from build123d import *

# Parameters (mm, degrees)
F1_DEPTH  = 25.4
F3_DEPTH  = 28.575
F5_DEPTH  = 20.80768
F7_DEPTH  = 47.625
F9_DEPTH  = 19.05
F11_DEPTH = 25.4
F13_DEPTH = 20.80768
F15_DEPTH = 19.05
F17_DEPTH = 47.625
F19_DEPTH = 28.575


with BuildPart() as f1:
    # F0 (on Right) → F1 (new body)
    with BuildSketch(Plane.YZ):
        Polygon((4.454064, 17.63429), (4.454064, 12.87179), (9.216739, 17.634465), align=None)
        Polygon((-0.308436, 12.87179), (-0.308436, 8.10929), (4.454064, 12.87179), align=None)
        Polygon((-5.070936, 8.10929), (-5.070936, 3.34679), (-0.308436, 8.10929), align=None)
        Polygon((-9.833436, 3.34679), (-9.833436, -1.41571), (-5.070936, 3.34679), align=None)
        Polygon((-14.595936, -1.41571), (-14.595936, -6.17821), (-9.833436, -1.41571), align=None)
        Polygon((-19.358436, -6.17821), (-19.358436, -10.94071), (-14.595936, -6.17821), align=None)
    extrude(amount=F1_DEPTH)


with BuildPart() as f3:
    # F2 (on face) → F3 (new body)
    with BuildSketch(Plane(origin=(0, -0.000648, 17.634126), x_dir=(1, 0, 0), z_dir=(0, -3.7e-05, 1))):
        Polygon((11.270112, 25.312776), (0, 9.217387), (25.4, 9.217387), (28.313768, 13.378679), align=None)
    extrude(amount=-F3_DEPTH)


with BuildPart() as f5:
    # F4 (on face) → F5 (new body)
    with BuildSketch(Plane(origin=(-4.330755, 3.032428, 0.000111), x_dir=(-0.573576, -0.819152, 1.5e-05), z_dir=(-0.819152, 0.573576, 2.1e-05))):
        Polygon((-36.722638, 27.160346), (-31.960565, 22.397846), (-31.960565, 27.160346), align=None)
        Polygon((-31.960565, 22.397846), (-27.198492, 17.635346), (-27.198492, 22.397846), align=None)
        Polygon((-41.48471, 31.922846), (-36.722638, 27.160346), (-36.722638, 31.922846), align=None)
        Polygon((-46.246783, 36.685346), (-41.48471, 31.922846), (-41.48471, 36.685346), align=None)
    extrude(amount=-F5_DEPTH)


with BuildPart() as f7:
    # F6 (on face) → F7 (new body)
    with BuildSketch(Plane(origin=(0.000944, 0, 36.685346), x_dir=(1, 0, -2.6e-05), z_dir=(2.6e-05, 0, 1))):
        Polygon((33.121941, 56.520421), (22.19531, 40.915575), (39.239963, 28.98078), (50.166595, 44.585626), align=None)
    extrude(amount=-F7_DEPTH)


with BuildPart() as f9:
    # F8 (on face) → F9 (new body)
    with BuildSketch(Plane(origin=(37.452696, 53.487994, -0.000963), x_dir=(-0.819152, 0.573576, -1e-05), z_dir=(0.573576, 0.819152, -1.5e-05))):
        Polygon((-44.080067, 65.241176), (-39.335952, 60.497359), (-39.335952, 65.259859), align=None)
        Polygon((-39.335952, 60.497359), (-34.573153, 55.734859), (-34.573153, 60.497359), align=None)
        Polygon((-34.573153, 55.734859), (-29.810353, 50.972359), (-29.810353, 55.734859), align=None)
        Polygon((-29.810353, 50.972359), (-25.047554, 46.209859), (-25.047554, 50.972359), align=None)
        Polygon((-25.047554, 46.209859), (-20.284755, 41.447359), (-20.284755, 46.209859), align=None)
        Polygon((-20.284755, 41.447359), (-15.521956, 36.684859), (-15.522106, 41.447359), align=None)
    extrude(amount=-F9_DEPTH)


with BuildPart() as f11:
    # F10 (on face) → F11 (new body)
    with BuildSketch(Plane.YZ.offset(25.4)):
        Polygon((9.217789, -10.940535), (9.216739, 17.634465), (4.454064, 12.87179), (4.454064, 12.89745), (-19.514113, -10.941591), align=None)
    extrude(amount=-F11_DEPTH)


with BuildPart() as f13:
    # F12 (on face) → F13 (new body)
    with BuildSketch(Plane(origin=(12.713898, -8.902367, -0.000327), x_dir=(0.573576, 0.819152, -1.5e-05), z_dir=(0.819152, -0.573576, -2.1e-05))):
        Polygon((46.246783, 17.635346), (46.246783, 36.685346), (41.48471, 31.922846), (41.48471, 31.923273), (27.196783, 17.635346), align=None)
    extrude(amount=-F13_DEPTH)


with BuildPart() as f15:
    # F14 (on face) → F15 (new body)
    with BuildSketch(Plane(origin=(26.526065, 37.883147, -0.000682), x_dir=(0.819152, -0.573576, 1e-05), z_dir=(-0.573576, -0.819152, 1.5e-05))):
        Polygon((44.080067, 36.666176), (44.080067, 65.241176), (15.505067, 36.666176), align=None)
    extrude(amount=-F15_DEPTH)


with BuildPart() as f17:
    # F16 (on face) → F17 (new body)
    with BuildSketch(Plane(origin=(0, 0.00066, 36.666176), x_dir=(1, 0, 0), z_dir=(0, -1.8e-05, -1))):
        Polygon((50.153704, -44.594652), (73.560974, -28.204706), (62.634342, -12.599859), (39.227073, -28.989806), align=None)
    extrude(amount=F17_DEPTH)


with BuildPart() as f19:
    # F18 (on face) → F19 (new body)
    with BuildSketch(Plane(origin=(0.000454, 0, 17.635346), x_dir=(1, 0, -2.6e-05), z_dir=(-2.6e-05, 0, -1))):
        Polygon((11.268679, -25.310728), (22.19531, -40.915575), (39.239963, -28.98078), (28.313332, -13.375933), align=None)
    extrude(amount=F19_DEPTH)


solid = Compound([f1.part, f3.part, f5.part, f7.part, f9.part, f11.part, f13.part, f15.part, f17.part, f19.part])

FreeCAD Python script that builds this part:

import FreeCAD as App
import Part
import Sketcher
from FreeCAD import Vector
Q = App.Units.Quantity


def add_polygon(sketch, points):
    """Adds a closed chain of lines whose ends are joined by coincident constraints."""
    first, n = sketch.GeometryCount, len(points)
    for a, b in zip(points, points[1:] + points[:1]):
        sketch.addGeometry(Part.LineSegment(App.Vector(*a, 0), App.Vector(*b, 0)), False)
    for i in range(n):
        sketch.addConstraint(Sketcher.Constraint("Coincident", first + i, 2, first + (i + 1) % n, 1))

doc = App.newDocument("Part")
body = doc.addObject("PartDesign::Body", "Body")
body.AllowCompound = True

sketch1 = body.newObject("Sketcher::SketchObject", "Sketch")
sketch1.AttachmentSupport = (doc.getObject("YZ_Plane"), [""])
sketch1.MapMode = "FlatFace"
add_polygon(sketch1, [(4.5, 17.6), (4.5, 12.9), (9.2, 17.6)])
add_polygon(sketch1, [(-0.3, 12.9), (-0.3, 8.1), (4.5, 12.9)])
add_polygon(sketch1, [(-5.1, 8.1), (-5.1, 3.3), (-0.3, 8.1)])
add_polygon(sketch1, [(-9.8, 3.3), (-9.8, -1.4), (-5.1, 3.3)])
add_polygon(sketch1, [(-14.6, -1.4), (-14.6, -6.2), (-9.8, -1.4)])
add_polygon(sketch1, [(-19.4, -6.2), (-19.4, -10.9), (-14.6, -6.2)])
sketch1.addConstraint(Sketcher.Constraint("Vertical", 0))
sketch1.addConstraint(Sketcher.Constraint("Vertical", 3))
sketch1.addConstraint(Sketcher.Constraint("Horizontal", 5))
sketch1.addConstraint(Sketcher.Constraint("Vertical", 6))
sketch1.addConstraint(Sketcher.Constraint("Horizontal", 8))
sketch1.addConstraint(Sketcher.Constraint("Vertical", 9))
sketch1.addConstraint(Sketcher.Constraint("Horizontal", 11))
sketch1.addConstraint(Sketcher.Constraint("Vertical", 12))
sketch1.addConstraint(Sketcher.Constraint("Horizontal", 14))
sketch1.addConstraint(Sketcher.Constraint("Vertical", 15))
sketch1.addConstraint(Sketcher.Constraint("Horizontal", 17))
sketch1.addConstraint(Sketcher.Constraint("Coincident", 4, 2, 0, 2))
sketch1.addConstraint(Sketcher.Constraint("Coincident", 7, 2, 3, 2))
sketch1.addConstraint(Sketcher.Constraint("Coincident", 10, 2, 6, 2))
sketch1.addConstraint(Sketcher.Constraint("Coincident", 13, 2, 9, 2))
sketch1.addConstraint(Sketcher.Constraint("Coincident", 16, 2, 12, 2))
sketch1.addConstraint(Sketcher.Constraint("Parallel", 1, 4))
sketch1.addConstraint(Sketcher.Constraint("Parallel", 4, 7))
sketch1.addConstraint(Sketcher.Constraint("Parallel", 7, 10))
sketch1.addConstraint(Sketcher.Constraint("Parallel", 10, 13))
sketch1.addConstraint(Sketcher.Constraint("Parallel", 13, 16))
sketch1.addConstraint(Sketcher.Constraint("Equal", 5, 8))
sketch1.addConstraint(Sketcher.Constraint("Equal", 8, 11))
sketch1.addConstraint(Sketcher.Constraint("Equal", 11, 14))
sketch1.addConstraint(Sketcher.Constraint("Equal", 14, 17))
sketch1.addConstraint(Sketcher.Constraint("Equal", 17, 0))
sketch1.addConstraint(Sketcher.Constraint("Equal", 0, 3))
sketch1.addConstraint(Sketcher.Constraint("DistanceX", 5, 2, 5, 1, Q("0.1875 in")))
sketch1.addConstraint(Sketcher.Constraint("Distance", 1, Q("6.73544 mm")))
sketch1.addConstraint(Sketcher.Constraint("DistanceY", -1, 1, 0, 2, Q("12.87179 mm")))
sketch1.addConstraint(Sketcher.Constraint("DistanceX", -1, 1, 1, 2, Q("9.216739 mm")))
pad1 = body.newObject("PartDesign::Pad", "Pad")
pad1.Profile = sketch1
pad1.Length = Q("1 in")
body2 = doc.addObject("PartDesign::Body", "Body001")

sketch2 = body2.newObject("Sketcher::SketchObject", "Sketch001")
sketch2.AttachmentSupport = (doc.getObject("XY_Plane001"), [""])
sketch2.MapMode = "FlatFace"
sketch2.AttachmentOffset = App.Placement(Vector(0, 0, 17.634126), App.Rotation())
add_polygon(sketch2, [(11, 25), (0, 9), (25, 9), (28, 13)])
sketch2.addConstraint(Sketcher.Constraint("Horizontal", 1))
sketch2.addConstraint(Sketcher.Constraint("PointOnObject", 0, 2, -2))
sketch2.addConstraint(Sketcher.Constraint("Parallel", 0, 2))
sketch2.addConstraint(Sketcher.Constraint("Perpendicular", 2, 3))
sketch2.addConstraint(Sketcher.Constraint("DistanceX", 1, 1, 1, 2, Q("1 in")))
sketch2.addConstraint(Sketcher.Constraint("Angle", 0, Q("-124.999998 deg")))
sketch2.addConstraint(Sketcher.Constraint("Distance", 2, Q("0.2 in")))
sketch2.addConstraint(Sketcher.Constraint("DistanceY", -1, 1, 0, 2, Q("9.216739 mm")))
pad2 = body2.newObject("PartDesign::Pad", "Pad001")
pad2.Profile = sketch2
pad2.Length = Q("1.125 in")
pad2.Reversed = True
body3 = doc.addObject("PartDesign::Body", "Body002")
body3.AllowCompound = True

sketch3 = body3.newObject("Sketcher::SketchObject", "Sketch002")
sketch3.Placement = App.Placement(Vector(-4.330755, 3.032428, 0.000111), App.Rotation(Vector(-0.573576164, -0.819152235, 0.000015), Vector(0.000025806, 0.000000242, 1), Vector(-0.819152235, 0.573576164, 0.000021), "ZXY"))
add_polygon(sketch3, [(-36.7, 27.2), (-32, 22.4), (-32, 27.2)])
add_polygon(sketch3, [(-32, 22.4), (-27.2, 17.6), (-27.2, 22.4)])
add_polygon(sketch3, [(-41.5, 31.9), (-36.7, 27.2), (-36.7, 31.9)])
add_polygon(sketch3, [(-46.2, 36.7), (-41.5, 31.9), (-41.5, 36.7)])
sketch3.addConstraint(Sketcher.Constraint("Vertical", 1))
sketch3.addConstraint(Sketcher.Constraint("Horizontal", 2))
sketch3.addConstraint(Sketcher.Constraint("Vertical", 4))
sketch3.addConstraint(Sketcher.Constraint("Horizontal", 5))
sketch3.addConstraint(Sketcher.Constraint("Vertical", 7))
sketch3.addConstraint(Sketcher.Constraint("Horizontal", 8))
sketch3.addConstraint(Sketcher.Constraint("Vertical", 10))
sketch3.addConstraint(Sketcher.Constraint("Horizontal", 11))
sketch3.addConstraint(Sketcher.Constraint("Coincident", 5, 2, 0, 2))
sketch3.addConstraint(Sketcher.Constraint("Coincident", 6, 2, 2, 2))
sketch3.addConstraint(Sketcher.Constraint("Coincident", 9, 2, 8, 2))
sketch3.addConstraint(Sketcher.Constraint("Parallel", 0, 3))
sketch3.addConstraint(Sketcher.Constraint("Parallel", 3, 6))
sketch3.addConstraint(Sketcher.Constraint("Parallel", 6, 9))
sketch3.addConstraint(Sketcher.Constraint("Equal", 2, 5))
sketch3.addConstraint(Sketcher.Constraint("Equal", 5, 8))
sketch3.addConstraint(Sketcher.Constraint("Equal", 8, 11))
sketch3.addConstraint(Sketcher.Constraint("DistanceY", 1, 1, 1, 2, Q("0.1875 in")))
sketch3.addConstraint(Sketcher.Constraint("Distance", 0, Q("6.73489 mm")))
sketch3.addConstraint(Sketcher.Constraint("DistanceX", 2, 2, -1, 1, Q("36.722638 mm")))
sketch3.addConstraint(Sketcher.Constraint("DistanceY", -1, 1, 0, 2, Q("22.397846 mm")))
pad3 = body3.newObject("PartDesign::Pad", "Pad002")
pad3.Profile = sketch3
pad3.Length = Q("0.8192 in")
pad3.Reversed = True
body4 = doc.addObject("PartDesign::Body", "Body003")

sketch4 = body4.newObject("Sketcher::SketchObject", "Sketch003")
sketch4.AttachmentSupport = (doc.getObject("XY_Plane003"), [""])
sketch4.MapMode = "FlatFace"
sketch4.AttachmentOffset = App.Placement(Vector(0, 0, 36.685346), App.Rotation())
add_polygon(sketch4, [(33, 57), (22, 41), (39, 29), (50, 45)])
sketch4.addConstraint(Sketcher.Constraint("Perpendicular", 0, 1))
sketch4.addConstraint(Sketcher.Constraint("Perpendicular", 1, 2))
sketch4.addConstraint(Sketcher.Constraint("Perpendicular", 2, 3))
sketch4.addConstraint(Sketcher.Constraint("Angle", 0, Q("-125 deg")))
sketch4.addConstraint(Sketcher.Constraint("Distance", 0, Q("0.75 in")))
sketch4.addConstraint(Sketcher.Constraint("Distance", 1, Q("0.8192 in")))
sketch4.addConstraint(Sketcher.Constraint("DistanceX", -1, 1, 2, 2, Q("1.9751 in")))
sketch4.addConstraint(Sketcher.Constraint("DistanceY", -1, 1, 1, 2, Q("28.98078 mm")))
pad4 = body4.newObject("PartDesign::Pad", "Pad003")
pad4.Profile = sketch4
pad4.Length = Q("1.875 in")
pad4.Reversed = True
body5 = doc.addObject("PartDesign::Body", "Body004")
body5.AllowCompound = True

sketch5 = body5.newObject("Sketcher::SketchObject", "Sketch004")
sketch5.Placement = App.Placement(Vector(37.452696, 53.487994, -0.000963), App.Rotation(Vector(-0.819152235, 0.573576164, -0.00001), Vector(0.000000412, 0.000018023, 1), Vector(0.573576164, 0.819152235, -0.000015), "ZXY"))
add_polygon(sketch5, [(-44.1, 65.2), (-39.3, 60.5), (-39.3, 65.3)])
add_polygon(sketch5, [(-39.3, 60.5), (-34.6, 55.7), (-34.6, 60.5)])
add_polygon(sketch5, [(-34.6, 55.7), (-29.8, 51), (-29.8, 55.7)])
add_polygon(sketch5, [(-29.8, 51), (-25, 46.2), (-25, 51)])
add_polygon(sketch5, [(-25, 46.2), (-20.3, 41.4), (-20.3, 46.2)])
add_polygon(sketch5, [(-20.3, 41.4), (-15.5, 36.7), (-15.5, 41.4)])
sketch5.addConstraint(Sketcher.Constraint("Vertical", 1))
sketch5.addConstraint(Sketcher.Constraint("Vertical", 4))
sketch5.addConstraint(Sketcher.Constraint("Horizontal", 5))
sketch5.addConstraint(Sketcher.Constraint("Vertical", 7))
sketch5.addConstraint(Sketcher.Constraint("Horizontal", 8))
sketch5.addConstraint(Sketcher.Constraint("Vertical", 10))
sketch5.addConstraint(Sketcher.Constraint("Horizontal", 11))
sketch5.addConstraint(Sketcher.Constraint("Vertical", 13))
sketch5.addConstraint(Sketcher.Constraint("Horizontal", 14))
sketch5.addConstraint(Sketcher.Constraint("Horizontal", 17))
sketch5.addConstraint(Sketcher.Constraint("Coincident", 5, 2, 0, 2))
sketch5.addConstraint(Sketcher.Constraint("Coincident", 8, 2, 3, 2))
sketch5.addConstraint(Sketcher.Constraint("Coincident", 11, 2, 6, 2))
sketch5.addConstraint(Sketcher.Constraint("Coincident", 14, 2, 9, 2))
sketch5.addConstraint(Sketcher.Constraint("Coincident", 17, 2, 12, 2))
sketch5.addConstraint(Sketcher.Constraint("Parallel", 0, 3))
sketch5.addConstraint(Sketcher.Constraint("Parallel", 3, 6))
sketch5.addConstraint(Sketcher.Constraint("Parallel", 6, 9))
sketch5.addConstraint(Sketcher.Constraint("Parallel", 9, 12))
sketch5.addConstraint(Sketcher.Constraint("Parallel", 12, 15))
sketch5.addConstraint(Sketcher.Constraint("Equal", 5, 8))
sketch5.addConstraint(Sketcher.Constraint("Equal", 8, 11))
sketch5.addConstraint(Sketcher.Constraint("Equal", 11, 14))
sketch5.addConstraint(Sketcher.Constraint("Equal", 1, 4))
sketch5.addConstraint(Sketcher.Constraint("Equal", 12, 15))
sketch5.addConstraint(Sketcher.Constraint("DistanceY", 1, 1, 1, 2, Q("0.1875 in")))
sketch5.addConstraint(Sketcher.Constraint("DistanceX", 5, 2, 5, 1, Q("4.762799 mm")))
sketch5.addConstraint(Sketcher.Constraint("DistanceX", 17, 2, 17, 1, Q("4.762649 mm")))
sketch5.addConstraint(Sketcher.Constraint("Distance", 0, Q("6.708981 mm")))
sketch5.addConstraint(Sketcher.Constraint("DistanceY", -1, 1, 0, 2, Q("60.497359 mm")))
sketch5.addConstraint(Sketcher.Constraint("DistanceX", 0, 2, -1, 1, Q("39.335952 mm")))
pad5 = body5.newObject("PartDesign::Pad", "Pad004")
pad5.Profile = sketch5
pad5.Length = Q("0.75 in")
pad5.Reversed = True
body6 = doc.addObject("PartDesign::Body", "Body005")

sketch6 = body6.newObject("Sketcher::SketchObject", "Sketch005")
sketch6.AttachmentSupport = (doc.getObject("YZ_Plane005"), [""])
sketch6.MapMode = "FlatFace"
sketch6.AttachmentOffset = App.Placement(Vector(0, 0, 1 * 25.4), App.Rotation())
add_polygon(sketch6, [(9.218, -10.941), (9.217, 17.634), (4.454, 12.872), (4.454, 12.897), (-19.514, -10.942)])
sketch6.addConstraint(Sketcher.Constraint("Vertical", 2))
sketch6.addConstraint(Sketcher.Constraint("Perpendicular", 0, 4))
sketch6.addConstraint(Sketcher.Constraint("Angle", 1, Q("-135 deg")))
sketch6.addConstraint(Sketcher.Constraint("Distance", 0, Q("1.125 in")))
sketch6.addConstraint(Sketcher.Constraint("DistanceY", 2, 1, 2, 2, Q("0.02566 mm")))
sketch6.addConstraint(Sketcher.Constraint("DistanceX", 3, 2, 4, 2, Q("28.731902 mm")))
sketch6.addConstraint(Sketcher.Constraint("Distance", 1, Q("6.73544 mm")))
sketch6.addConstraint(Sketcher.Constraint("DistanceX", -1, 1, 0, 2, Q("9.216739 mm")))
sketch6.addConstraint(Sketcher.Constraint("DistanceY", -1, 1, 1, 2, Q("12.87179 mm")))
sketch6.addConstraint(Sketcher.Constraint("DistanceY", 3, 2, -1, 1, Q("10.941591 mm")))
pad6 = body6.newObject("PartDesign::Pad", "Pad005")
pad6.Profile = sketch6
pad6.Length = Q("1 in")
pad6.Reversed = True
body7 = doc.addObject("PartDesign::Body", "Body006")

sketch7 = body7.newObject("Sketcher::SketchObject", "Sketch006")
sketch7.Placement = App.Placement(Vector(12.713898, -8.902367, -0.000327), App.Rotation(Vector(0.573576164, 0.819152235, -0.000015), Vector(0.000025806, 0.000000242, 1), Vector(0.819152235, -0.573576164, -0.000021), "ZXY"))
add_polygon(sketch7, [(46.24678, 17.63535), (46.24678, 36.68535), (41.48471, 31.92285), (41.48471, 31.92327), (27.19678, 17.63535)])
sketch7.addConstraint(Sketcher.Constraint("Vertical", 0))
sketch7.addConstraint(Sketcher.Constraint("Vertical", 2))
sketch7.addConstraint(Sketcher.Constraint("Horizontal", 4))
sketch7.addConstraint(Sketcher.Constraint("Equal", 4, 0))
sketch7.addConstraint(Sketcher.Constraint("Angle", 3, Q("-135 deg")))
sketch7.addConstraint(Sketcher.Constraint("DistanceX", 4, 1, 4, 2, Q("0.75 in")))
sketch7.addConstraint(Sketcher.Constraint("DistanceY", 1, 2, 0, 2, Q("0.1875 in")))
sketch7.addConstraint(Sketcher.Constraint("Distance", 1, Q("6.73489 mm")))
sketch7.addConstraint(Sketcher.Constraint("DistanceX", -1, 1, 1, 2, Q("41.48471 mm")))
sketch7.addConstraint(Sketcher.Constraint("DistanceY", -1, 1, 0, 2, Q("36.685346 mm")))
pad7 = body7.newObject("PartDesign::Pad", "Pad006")
pad7.Profile = sketch7
pad7.Length = Q("0.8192 in")
pad7.Reversed = True
body8 = doc.addObject("PartDesign::Body", "Body007")

sketch8 = body8.newObject("Sketcher::SketchObject", "Sketch007")
sketch8.Placement = App.Placement(Vector(26.526065, 37.883147, -0.000682), App.Rotation(Vector(0.819152235, -0.573576164, 0.00001), Vector(0.000000412, 0.000018023, 1), Vector(-0.573576164, -0.819152235, 0.000015), "ZXY"))
add_polygon(sketch8, [(44, 37), (44, 65), (16, 37)])
sketch8.addConstraint(Sketcher.Constraint("Vertical", 0))
sketch8.addConstraint(Sketcher.Constraint("Horizontal", 2))
sketch8.addConstraint(Sketcher.Constraint("Equal", 2, 0))
sketch8.addConstraint(Sketcher.Constraint("DistanceX", 2, 1, 2, 2, Q("1.125 in")))
sketch8.addConstraint(Sketcher.Constraint("DistanceX", -1, 1, 0, 2, Q("44.080067 mm")))
sketch8.addConstraint(Sketcher.Constraint("DistanceY", -1, 1, 0, 2, Q("65.241176 mm")))
pad8 = body8.newObject("PartDesign::Pad", "Pad007")
pad8.Profile = sketch8
pad8.Length = Q("0.75 in")
pad8.Reversed = True
body9 = doc.addObject("PartDesign::Body", "Body008")

sketch9 = body9.newObject("Sketcher::SketchObject", "Sketch008")
sketch9.AttachmentSupport = (doc.getObject("XY_Plane008"), [""])
sketch9.MapMode = "FlatFace"
sketch9.AttachmentOffset = App.Placement(Vector(0, 0, 36.666176), App.Rotation())
add_polygon(sketch9, [(50, 45), (74, 28), (63, 13), (39, 29)])
sketch9.addConstraint(Sketcher.Constraint("Perpendicular", 0, 1))
sketch9.addConstraint(Sketcher.Constraint("Perpendicular", 1, 2))
sketch9.addConstraint(Sketcher.Constraint("Perpendicular", 2, 3))
sketch9.addConstraint(Sketcher.Constraint("Angle", 0, Q("-34.999999 deg")))
sketch9.addConstraint(Sketcher.Constraint("Distance", 1, Q("0.75 in")))
sketch9.addConstraint(Sketcher.Constraint("Distance", 0, Q("1.125 in")))
sketch9.addConstraint(Sketcher.Constraint("DistanceX", -1, 1, 1, 2, Q("62.634342 mm")))
sketch9.addConstraint(Sketcher.Constraint("DistanceY", -1, 1, 1, 2, Q("12.600519 mm")))
pad9 = body9.newObject("PartDesign::Pad", "Pad008")
pad9.Profile = sketch9
pad9.Length = Q("1.875 in")
pad9.Reversed = True
body10 = doc.addObject("PartDesign::Body", "Body009")

sketch10 = body10.newObject("Sketcher::SketchObject", "Sketch009")
sketch10.AttachmentSupport = (doc.getObject("XY_Plane009"), [""])
sketch10.MapMode = "FlatFace"
sketch10.AttachmentOffset = App.Placement(Vector(0, 0, 17.635346), App.Rotation())
add_polygon(sketch10, [(11, 25), (22, 41), (39, 29), (28, 13)])
sketch10.addConstraint(Sketcher.Constraint("Perpendicular", 0, 1))
sketch10.addConstraint(Sketcher.Constraint("Perpendicular", 1, 2))
sketch10.addConstraint(Sketcher.Constraint("Perpendicular", 2, 3))
sketch10.addConstraint(Sketcher.Constraint("Angle", 0, Q("55.000001 deg")))
sketch10.addConstraint(Sketcher.Constraint("Distance", 0, Q("0.75 in")))
sketch10.addConstraint(Sketcher.Constraint("Distance", 1, Q("0.8192 in")))
sketch10.addConstraint(Sketcher.Constraint("DistanceY", -1, 1, 1, 2, Q("28.98078 mm")))
sketch10.addConstraint(Sketcher.Constraint("DistanceX", -1, 1, 0, 2, Q("22.195764 mm")))
pad10 = body10.newObject("PartDesign::Pad", "Pad009")
pad10.Profile = sketch10
pad10.Length = Q("1.125 in")
pad10.Reversed = True

doc.recompute()
